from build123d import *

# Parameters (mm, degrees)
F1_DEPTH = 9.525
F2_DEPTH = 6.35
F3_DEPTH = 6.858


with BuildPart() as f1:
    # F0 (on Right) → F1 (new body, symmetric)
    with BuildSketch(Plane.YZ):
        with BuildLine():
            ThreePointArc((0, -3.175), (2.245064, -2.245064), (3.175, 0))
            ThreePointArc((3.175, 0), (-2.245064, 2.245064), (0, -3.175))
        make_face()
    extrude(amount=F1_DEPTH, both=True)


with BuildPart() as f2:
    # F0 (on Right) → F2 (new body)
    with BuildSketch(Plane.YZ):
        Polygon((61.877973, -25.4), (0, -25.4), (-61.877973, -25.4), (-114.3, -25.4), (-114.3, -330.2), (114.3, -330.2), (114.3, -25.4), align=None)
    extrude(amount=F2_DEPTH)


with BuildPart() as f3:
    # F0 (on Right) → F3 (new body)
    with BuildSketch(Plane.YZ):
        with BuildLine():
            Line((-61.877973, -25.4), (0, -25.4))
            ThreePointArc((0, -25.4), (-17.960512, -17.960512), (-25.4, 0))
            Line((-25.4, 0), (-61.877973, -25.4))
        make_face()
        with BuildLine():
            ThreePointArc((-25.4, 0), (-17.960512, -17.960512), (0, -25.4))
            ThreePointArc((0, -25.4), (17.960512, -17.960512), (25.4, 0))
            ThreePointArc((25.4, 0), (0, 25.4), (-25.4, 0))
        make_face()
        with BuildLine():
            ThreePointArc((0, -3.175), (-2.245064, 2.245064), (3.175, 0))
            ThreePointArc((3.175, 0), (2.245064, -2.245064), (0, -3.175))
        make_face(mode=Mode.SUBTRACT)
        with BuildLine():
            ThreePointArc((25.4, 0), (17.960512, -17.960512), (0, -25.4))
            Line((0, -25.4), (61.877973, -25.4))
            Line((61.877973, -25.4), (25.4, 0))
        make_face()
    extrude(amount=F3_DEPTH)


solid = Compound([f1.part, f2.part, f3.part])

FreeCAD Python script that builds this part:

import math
import FreeCAD as App
import Part
import Sketcher
from FreeCAD import Vector
Q = App.Units.Quantity


def add_polygon(sketch, points):
    """Adds a closed chain of lines whose ends are joined by coincident constraints."""
    first, n = sketch.GeometryCount, len(points)
    for a, b in zip(points, points[1:] + points[:1]):
        sketch.addGeometry(Part.LineSegment(App.Vector(*a, 0), App.Vector(*b, 0)), False)
    for i in range(n):
        sketch.addConstraint(Sketcher.Constraint("Coincident", first + i, 2, first + (i + 1) % n, 1))

doc = App.newDocument("Part")
body = doc.addObject("PartDesign::Body", "Body")

sketch1 = doc.addObject("Sketcher::SketchObject", "Sketch")
body.addObject(sketch1)
sketch1.AttachmentSupport = (doc.YZ_Plane, [""])
sketch1.MapMode = "FlatFace"
sketch1.addGeometry([
    Part.ArcOfCircle(Part.Circle(Vector(0, 0, 0), Vector(0, 0, 1), 3.2), math.radians(-90), math.radians(0)),
    Part.ArcOfCircle(Part.Circle(Vector(0, 0, 0), Vector(0, 0, 1), 3.2), math.radians(0), math.radians(270)),
], False)
sketch1.addConstraint([
    Sketcher.Constraint("Tangent", 0, 1, 1, 2),
    Sketcher.Constraint("Coincident", 1, 1, 0, 2),
    Sketcher.Constraint("Coincident", 0, 3, -1, 1),
    Sketcher.Constraint("PointOnObject", 0, 1, -2),
    Sketcher.Constraint("PointOnObject", 1, 1, -1),
    Sketcher.Constraint("Radius", 0, Q("0.125 in")),
])
pad1 = doc.addObject("PartDesign::Pad", "Pad")
body.addObject(pad1)
pad1.Profile = sketch1
pad1.Length = Q("0.75 in")
pad1.Midplane = True
body2 = doc.addObject("PartDesign::Body", "Body001")

sketch2 = doc.addObject("Sketcher::SketchObject", "Sketch001")
body2.addObject(sketch2)
sketch2.AttachmentSupport = (doc.getObject("YZ_Plane001"), [""])
sketch2.MapMode = "FlatFace"
add_polygon(sketch2, [(-114, -25), (-114, -330), (114, -330), (114, -25)])
sketch2.addConstraint([
    Sketcher.Constraint("Vertical", 0),
    Sketcher.Constraint("Horizontal", 1),
    Sketcher.Constraint("Vertical", 2),
    Sketcher.Constraint("Horizontal", 3),
    Sketcher.Constraint("DistanceX", 1, 1, 1, 2, Q("9 in")),
    Sketcher.Constraint("DistanceY", 0, 2, 0, 1, Q("12 in")),
    Sketcher.Constraint("DistanceY", 0, 2, -1, 1, Q("13 in")),
    Sketcher.Constraint("DistanceX", 0, 2, -1, 1, Q("4.5 in")),
])
pad2 = doc.addObject("PartDesign::Pad", "Pad001")
body2.addObject(pad2)
pad2.Profile = sketch2
pad2.Length = Q("0.25 in")
body3 = doc.addObject("PartDesign::Body", "Body002")

sketch3 = doc.addObject("Sketcher::SketchObject", "Sketch002")
body3.addObject(sketch3)
sketch3.AttachmentSupport = (doc.getObject("YZ_Plane002"), [""])
sketch3.MapMode = "FlatFace"
sketch3.addGeometry([
    Part.LineSegment(Vector(-61.9, -25.4, 0), Vector(61.9, -25.4, 0)),
    Part.LineSegment(Vector(61.9, -25.4, 0), Vector(25.4, 0, 0)),
    Part.ArcOfCircle(Part.Circle(Vector(0, 0, 0), Vector(0, 0, 1), 25.4), math.radians(0), math.radians(180)),
    Part.LineSegment(Vector(-25.4, 0, 0), Vector(-61.9, -25.4, 0)),
    Part.ArcOfCircle(Part.Circle(Vector(0, 0, 0), Vector(0, 0, 1), 3.2), math.radians(-90), math.radians(0)),
    Part.ArcOfCircle(Part.Circle(Vector(0, 0, 0), Vector(0, 0, 1), 3.2), math.radians(0), math.radians(270)),
], False)
sketch3.addConstraint([
    Sketcher.Constraint("Coincident", 0, 2, 1, 1),
    Sketcher.Constraint("Coincident", 1, 2, 2, 1),
    Sketcher.Constraint("Coincident", 2, 2, 3, 1),
    Sketcher.Constraint("Coincident", 3, 2, 0, 1),
    Sketcher.Constraint("Tangent", 4, 1, 5, 2),
    Sketcher.Constraint("Coincident", 5, 1, 4, 2),
    Sketcher.Constraint("Horizontal", 0),
    Sketcher.Constraint("Coincident", 2, 3, -1, 1),
    Sketcher.Constraint("Coincident", 4, 3, -1, 1),
    Sketcher.Constraint("PointOnObject", 1, 2, -1),
    Sketcher.Constraint("PointOnObject", 2, 2, -1),
    Sketcher.Constraint("PointOnObject", 4, 1, -2),
    Sketcher.Constraint("PointOnObject", 5, 1, -1),
    Sketcher.Constraint("Equal", 1, 3),
    Sketcher.Constraint("Radius", 2, Q("1 in")),
    Sketcher.Constraint("DistanceY", 0, 2, -1, 1, Q("1 in")),
    Sketcher.Constraint("Radius", 4, Q("0.125 in")),
    Sketcher.Constraint("Distance", 1, Q("1.75 in")),
])
pad3 = doc.addObject("PartDesign::Pad", "Pad002")
body3.addObject(pad3)
pad3.Profile = sketch3
pad3.Length = Q("0.27 in")

doc.recompute()
